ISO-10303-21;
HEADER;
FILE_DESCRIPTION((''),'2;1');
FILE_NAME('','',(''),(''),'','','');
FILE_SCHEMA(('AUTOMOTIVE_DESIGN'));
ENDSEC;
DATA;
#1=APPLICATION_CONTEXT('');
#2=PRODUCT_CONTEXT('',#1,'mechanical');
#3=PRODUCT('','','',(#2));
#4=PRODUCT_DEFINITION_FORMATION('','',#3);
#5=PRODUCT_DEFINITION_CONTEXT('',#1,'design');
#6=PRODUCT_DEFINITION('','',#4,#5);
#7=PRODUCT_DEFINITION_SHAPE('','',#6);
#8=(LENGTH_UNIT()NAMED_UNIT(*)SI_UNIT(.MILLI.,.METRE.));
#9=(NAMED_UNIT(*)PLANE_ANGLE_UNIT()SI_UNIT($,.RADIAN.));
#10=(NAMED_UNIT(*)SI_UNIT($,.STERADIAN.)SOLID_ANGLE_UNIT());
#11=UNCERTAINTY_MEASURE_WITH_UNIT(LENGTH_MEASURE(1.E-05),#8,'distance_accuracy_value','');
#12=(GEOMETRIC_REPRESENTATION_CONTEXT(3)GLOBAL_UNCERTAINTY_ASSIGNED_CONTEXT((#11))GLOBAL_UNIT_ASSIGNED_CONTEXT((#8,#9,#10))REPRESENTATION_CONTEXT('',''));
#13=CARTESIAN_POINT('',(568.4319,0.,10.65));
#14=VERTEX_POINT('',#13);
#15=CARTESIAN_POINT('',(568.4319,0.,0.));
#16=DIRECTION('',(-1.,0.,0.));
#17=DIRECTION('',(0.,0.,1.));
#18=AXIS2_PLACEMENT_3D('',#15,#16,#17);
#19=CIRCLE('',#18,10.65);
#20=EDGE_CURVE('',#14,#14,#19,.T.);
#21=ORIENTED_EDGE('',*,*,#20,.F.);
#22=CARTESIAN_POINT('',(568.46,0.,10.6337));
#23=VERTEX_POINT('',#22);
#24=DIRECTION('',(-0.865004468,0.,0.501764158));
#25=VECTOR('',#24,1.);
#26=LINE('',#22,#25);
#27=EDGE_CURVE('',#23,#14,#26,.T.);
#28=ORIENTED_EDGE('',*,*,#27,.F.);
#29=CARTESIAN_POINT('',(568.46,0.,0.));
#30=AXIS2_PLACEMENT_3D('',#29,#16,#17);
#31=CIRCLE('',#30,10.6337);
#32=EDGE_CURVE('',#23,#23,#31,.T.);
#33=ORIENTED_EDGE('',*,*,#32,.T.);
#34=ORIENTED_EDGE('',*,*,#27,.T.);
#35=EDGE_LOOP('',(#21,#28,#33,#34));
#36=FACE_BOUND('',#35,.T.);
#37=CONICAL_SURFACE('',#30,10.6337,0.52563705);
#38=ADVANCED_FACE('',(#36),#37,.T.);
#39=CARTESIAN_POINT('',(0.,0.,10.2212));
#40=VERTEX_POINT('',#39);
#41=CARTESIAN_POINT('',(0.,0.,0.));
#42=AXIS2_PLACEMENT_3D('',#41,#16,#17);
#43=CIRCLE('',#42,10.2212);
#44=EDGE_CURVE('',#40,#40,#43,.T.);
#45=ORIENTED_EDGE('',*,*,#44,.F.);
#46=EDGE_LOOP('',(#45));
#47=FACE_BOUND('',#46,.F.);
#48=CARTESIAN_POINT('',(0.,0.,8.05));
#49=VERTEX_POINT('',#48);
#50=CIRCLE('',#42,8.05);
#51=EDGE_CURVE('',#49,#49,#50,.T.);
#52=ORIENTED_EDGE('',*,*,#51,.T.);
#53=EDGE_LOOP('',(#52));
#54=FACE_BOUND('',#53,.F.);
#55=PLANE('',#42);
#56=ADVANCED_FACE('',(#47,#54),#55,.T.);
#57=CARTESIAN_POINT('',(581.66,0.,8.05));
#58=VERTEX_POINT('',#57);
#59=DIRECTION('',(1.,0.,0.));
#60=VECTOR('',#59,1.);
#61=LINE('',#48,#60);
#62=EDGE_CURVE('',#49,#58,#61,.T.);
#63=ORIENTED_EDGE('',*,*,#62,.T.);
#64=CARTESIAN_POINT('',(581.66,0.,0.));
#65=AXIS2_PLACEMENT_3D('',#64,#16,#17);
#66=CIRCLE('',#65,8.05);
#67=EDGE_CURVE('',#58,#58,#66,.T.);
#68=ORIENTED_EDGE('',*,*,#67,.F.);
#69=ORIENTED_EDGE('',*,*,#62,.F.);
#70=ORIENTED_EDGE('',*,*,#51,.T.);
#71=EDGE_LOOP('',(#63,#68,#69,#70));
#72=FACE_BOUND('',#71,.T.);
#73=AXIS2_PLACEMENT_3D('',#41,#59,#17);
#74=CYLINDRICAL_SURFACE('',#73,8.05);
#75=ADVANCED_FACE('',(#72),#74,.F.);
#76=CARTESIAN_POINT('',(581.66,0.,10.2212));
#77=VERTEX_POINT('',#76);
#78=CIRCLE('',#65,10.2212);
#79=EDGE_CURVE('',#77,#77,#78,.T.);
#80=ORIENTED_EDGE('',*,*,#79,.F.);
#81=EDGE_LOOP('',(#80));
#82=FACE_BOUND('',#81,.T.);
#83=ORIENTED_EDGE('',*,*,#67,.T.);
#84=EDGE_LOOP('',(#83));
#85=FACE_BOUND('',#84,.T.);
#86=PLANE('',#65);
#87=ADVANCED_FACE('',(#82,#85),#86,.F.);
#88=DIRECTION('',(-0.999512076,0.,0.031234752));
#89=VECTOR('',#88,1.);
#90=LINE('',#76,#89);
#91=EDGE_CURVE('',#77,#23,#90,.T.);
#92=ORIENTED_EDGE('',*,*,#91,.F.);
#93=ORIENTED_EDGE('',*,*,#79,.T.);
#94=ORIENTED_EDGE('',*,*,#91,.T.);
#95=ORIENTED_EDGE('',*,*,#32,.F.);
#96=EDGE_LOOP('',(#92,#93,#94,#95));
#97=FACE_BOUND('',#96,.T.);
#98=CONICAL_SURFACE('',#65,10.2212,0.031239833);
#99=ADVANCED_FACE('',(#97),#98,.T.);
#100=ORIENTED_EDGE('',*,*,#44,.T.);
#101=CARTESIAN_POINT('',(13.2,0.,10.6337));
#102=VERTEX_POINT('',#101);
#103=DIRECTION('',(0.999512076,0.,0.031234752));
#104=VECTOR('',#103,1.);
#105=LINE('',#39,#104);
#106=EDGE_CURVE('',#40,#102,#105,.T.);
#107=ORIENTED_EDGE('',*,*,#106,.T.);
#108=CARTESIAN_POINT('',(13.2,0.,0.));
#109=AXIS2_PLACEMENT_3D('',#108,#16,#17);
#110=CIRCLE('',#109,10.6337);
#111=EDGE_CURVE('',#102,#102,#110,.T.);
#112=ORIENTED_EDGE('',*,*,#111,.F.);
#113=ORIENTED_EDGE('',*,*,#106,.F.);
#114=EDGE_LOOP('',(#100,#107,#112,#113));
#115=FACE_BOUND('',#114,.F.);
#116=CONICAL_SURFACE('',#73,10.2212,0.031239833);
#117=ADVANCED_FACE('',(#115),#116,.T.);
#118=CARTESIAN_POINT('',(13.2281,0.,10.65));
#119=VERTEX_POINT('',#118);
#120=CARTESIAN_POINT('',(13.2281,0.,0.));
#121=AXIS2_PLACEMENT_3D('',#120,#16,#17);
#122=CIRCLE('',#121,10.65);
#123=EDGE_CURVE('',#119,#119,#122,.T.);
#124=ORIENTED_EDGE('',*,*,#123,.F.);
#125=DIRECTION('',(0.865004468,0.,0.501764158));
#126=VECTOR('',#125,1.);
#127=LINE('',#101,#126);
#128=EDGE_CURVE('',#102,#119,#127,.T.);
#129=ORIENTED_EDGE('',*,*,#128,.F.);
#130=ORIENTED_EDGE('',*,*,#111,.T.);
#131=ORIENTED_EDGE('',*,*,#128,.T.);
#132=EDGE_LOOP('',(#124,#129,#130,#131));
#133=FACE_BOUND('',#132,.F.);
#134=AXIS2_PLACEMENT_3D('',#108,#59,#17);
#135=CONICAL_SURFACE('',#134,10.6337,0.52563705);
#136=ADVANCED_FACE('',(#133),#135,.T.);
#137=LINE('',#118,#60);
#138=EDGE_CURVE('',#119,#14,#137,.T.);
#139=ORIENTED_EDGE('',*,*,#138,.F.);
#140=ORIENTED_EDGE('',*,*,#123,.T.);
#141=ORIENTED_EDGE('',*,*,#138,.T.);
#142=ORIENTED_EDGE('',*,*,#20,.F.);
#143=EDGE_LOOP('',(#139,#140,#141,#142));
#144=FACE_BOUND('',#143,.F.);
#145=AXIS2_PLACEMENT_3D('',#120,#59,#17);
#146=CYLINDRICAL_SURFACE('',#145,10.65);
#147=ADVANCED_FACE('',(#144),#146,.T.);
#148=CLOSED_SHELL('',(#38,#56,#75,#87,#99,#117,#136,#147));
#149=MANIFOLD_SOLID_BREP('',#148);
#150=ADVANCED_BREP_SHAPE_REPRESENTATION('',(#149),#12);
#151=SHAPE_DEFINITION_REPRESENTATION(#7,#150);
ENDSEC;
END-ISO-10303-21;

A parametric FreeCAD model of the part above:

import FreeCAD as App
import Part
import Sketcher
from FreeCAD import Vector
Q = App.Units.Quantity


def add_polygon(sketch, points):
    """Adds a closed chain of lines whose ends are joined by coincident constraints."""
    first, n = sketch.GeometryCount, len(points)
    for a, b in zip(points, points[1:] + points[:1]):
        sketch.addGeometry(Part.LineSegment(App.Vector(*a, 0), App.Vector(*b, 0)), False)
    for i in range(n):
        sketch.addConstraint(Sketcher.Constraint("Coincident", first + i, 2, first + (i + 1) % n, 1))

doc = App.newDocument("Part")
params = doc.addObject("Spreadsheet::Sheet", "Params")
for row, (alias, value) in enumerate([
    ("sketch1_width", "22.9 in"),
    ("revolution_angle", "360 deg"),
], start=1):
    params.set(f"A{row}", alias)
    params.set(f"B{row}", "=" + value)
    params.setAlias(f"B{row}", alias)

body = doc.addObject("PartDesign::Body", "Body")

sketch1 = body.newObject("Sketcher::SketchObject", "Sketch")
sketch1.AttachmentSupport = (doc.getObject("XZ_Plane"), [""])
sketch1.MapMode = "FlatFace"
add_polygon(sketch1, [(581.66, 8.05), (0, 8.05), (0, 10.221), (13.2, 10.634), (13.228, 10.65), (568.432, 10.65), (568.46, 10.634), (581.66, 10.221)])
sketch1.addConstraint([
    Sketcher.Constraint("Horizontal", 0),
    Sketcher.Constraint("Vertical", 1),
    Sketcher.Constraint("Horizontal", 4),
    Sketcher.Constraint("Vertical", 7),
    Sketcher.Constraint("PointOnObject", 0, 2, -2),
    Sketcher.Constraint("Horizontal", 2, 2, 5, 2),
    Sketcher.Constraint("Horizontal", 1, 2, 6, 2),
    Sketcher.Constraint("Equal", 3, 5),
    Sketcher.Constraint("Equal", 2, 6),
    Sketcher.Constraint("DistanceX", 0, 2, 0, 1, Q("22.9 in")),
    Sketcher.Constraint("Angle", 2, Q("1.79 deg")),
    Sketcher.Constraint("DistanceX", -1, 1, 2, 2, 13.2),
    Sketcher.Constraint("DistanceY", 0, 2, 3, 2, 2.6),
    Sketcher.Constraint("DistanceX", 4, 1, 4, 2, 555.2038),
    Sketcher.Constraint("DistanceY", 1, 1, 1, 2, 2.1712),
    Sketcher.Constraint("DistanceY", -1, 1, 1, 2, Q("0.4024 in")),
])
sketch1.setExpression("Constraints[17]", "Params.sketch1_width")
revolution = body.newObject("PartDesign::Revolution", "Revolution")
revolution.Profile = sketch1
revolution.ReferenceAxis = (sketch1, ["H_Axis"])
revolution.setExpression("Angle", "Params.revolution_angle")

doc.recompute()
